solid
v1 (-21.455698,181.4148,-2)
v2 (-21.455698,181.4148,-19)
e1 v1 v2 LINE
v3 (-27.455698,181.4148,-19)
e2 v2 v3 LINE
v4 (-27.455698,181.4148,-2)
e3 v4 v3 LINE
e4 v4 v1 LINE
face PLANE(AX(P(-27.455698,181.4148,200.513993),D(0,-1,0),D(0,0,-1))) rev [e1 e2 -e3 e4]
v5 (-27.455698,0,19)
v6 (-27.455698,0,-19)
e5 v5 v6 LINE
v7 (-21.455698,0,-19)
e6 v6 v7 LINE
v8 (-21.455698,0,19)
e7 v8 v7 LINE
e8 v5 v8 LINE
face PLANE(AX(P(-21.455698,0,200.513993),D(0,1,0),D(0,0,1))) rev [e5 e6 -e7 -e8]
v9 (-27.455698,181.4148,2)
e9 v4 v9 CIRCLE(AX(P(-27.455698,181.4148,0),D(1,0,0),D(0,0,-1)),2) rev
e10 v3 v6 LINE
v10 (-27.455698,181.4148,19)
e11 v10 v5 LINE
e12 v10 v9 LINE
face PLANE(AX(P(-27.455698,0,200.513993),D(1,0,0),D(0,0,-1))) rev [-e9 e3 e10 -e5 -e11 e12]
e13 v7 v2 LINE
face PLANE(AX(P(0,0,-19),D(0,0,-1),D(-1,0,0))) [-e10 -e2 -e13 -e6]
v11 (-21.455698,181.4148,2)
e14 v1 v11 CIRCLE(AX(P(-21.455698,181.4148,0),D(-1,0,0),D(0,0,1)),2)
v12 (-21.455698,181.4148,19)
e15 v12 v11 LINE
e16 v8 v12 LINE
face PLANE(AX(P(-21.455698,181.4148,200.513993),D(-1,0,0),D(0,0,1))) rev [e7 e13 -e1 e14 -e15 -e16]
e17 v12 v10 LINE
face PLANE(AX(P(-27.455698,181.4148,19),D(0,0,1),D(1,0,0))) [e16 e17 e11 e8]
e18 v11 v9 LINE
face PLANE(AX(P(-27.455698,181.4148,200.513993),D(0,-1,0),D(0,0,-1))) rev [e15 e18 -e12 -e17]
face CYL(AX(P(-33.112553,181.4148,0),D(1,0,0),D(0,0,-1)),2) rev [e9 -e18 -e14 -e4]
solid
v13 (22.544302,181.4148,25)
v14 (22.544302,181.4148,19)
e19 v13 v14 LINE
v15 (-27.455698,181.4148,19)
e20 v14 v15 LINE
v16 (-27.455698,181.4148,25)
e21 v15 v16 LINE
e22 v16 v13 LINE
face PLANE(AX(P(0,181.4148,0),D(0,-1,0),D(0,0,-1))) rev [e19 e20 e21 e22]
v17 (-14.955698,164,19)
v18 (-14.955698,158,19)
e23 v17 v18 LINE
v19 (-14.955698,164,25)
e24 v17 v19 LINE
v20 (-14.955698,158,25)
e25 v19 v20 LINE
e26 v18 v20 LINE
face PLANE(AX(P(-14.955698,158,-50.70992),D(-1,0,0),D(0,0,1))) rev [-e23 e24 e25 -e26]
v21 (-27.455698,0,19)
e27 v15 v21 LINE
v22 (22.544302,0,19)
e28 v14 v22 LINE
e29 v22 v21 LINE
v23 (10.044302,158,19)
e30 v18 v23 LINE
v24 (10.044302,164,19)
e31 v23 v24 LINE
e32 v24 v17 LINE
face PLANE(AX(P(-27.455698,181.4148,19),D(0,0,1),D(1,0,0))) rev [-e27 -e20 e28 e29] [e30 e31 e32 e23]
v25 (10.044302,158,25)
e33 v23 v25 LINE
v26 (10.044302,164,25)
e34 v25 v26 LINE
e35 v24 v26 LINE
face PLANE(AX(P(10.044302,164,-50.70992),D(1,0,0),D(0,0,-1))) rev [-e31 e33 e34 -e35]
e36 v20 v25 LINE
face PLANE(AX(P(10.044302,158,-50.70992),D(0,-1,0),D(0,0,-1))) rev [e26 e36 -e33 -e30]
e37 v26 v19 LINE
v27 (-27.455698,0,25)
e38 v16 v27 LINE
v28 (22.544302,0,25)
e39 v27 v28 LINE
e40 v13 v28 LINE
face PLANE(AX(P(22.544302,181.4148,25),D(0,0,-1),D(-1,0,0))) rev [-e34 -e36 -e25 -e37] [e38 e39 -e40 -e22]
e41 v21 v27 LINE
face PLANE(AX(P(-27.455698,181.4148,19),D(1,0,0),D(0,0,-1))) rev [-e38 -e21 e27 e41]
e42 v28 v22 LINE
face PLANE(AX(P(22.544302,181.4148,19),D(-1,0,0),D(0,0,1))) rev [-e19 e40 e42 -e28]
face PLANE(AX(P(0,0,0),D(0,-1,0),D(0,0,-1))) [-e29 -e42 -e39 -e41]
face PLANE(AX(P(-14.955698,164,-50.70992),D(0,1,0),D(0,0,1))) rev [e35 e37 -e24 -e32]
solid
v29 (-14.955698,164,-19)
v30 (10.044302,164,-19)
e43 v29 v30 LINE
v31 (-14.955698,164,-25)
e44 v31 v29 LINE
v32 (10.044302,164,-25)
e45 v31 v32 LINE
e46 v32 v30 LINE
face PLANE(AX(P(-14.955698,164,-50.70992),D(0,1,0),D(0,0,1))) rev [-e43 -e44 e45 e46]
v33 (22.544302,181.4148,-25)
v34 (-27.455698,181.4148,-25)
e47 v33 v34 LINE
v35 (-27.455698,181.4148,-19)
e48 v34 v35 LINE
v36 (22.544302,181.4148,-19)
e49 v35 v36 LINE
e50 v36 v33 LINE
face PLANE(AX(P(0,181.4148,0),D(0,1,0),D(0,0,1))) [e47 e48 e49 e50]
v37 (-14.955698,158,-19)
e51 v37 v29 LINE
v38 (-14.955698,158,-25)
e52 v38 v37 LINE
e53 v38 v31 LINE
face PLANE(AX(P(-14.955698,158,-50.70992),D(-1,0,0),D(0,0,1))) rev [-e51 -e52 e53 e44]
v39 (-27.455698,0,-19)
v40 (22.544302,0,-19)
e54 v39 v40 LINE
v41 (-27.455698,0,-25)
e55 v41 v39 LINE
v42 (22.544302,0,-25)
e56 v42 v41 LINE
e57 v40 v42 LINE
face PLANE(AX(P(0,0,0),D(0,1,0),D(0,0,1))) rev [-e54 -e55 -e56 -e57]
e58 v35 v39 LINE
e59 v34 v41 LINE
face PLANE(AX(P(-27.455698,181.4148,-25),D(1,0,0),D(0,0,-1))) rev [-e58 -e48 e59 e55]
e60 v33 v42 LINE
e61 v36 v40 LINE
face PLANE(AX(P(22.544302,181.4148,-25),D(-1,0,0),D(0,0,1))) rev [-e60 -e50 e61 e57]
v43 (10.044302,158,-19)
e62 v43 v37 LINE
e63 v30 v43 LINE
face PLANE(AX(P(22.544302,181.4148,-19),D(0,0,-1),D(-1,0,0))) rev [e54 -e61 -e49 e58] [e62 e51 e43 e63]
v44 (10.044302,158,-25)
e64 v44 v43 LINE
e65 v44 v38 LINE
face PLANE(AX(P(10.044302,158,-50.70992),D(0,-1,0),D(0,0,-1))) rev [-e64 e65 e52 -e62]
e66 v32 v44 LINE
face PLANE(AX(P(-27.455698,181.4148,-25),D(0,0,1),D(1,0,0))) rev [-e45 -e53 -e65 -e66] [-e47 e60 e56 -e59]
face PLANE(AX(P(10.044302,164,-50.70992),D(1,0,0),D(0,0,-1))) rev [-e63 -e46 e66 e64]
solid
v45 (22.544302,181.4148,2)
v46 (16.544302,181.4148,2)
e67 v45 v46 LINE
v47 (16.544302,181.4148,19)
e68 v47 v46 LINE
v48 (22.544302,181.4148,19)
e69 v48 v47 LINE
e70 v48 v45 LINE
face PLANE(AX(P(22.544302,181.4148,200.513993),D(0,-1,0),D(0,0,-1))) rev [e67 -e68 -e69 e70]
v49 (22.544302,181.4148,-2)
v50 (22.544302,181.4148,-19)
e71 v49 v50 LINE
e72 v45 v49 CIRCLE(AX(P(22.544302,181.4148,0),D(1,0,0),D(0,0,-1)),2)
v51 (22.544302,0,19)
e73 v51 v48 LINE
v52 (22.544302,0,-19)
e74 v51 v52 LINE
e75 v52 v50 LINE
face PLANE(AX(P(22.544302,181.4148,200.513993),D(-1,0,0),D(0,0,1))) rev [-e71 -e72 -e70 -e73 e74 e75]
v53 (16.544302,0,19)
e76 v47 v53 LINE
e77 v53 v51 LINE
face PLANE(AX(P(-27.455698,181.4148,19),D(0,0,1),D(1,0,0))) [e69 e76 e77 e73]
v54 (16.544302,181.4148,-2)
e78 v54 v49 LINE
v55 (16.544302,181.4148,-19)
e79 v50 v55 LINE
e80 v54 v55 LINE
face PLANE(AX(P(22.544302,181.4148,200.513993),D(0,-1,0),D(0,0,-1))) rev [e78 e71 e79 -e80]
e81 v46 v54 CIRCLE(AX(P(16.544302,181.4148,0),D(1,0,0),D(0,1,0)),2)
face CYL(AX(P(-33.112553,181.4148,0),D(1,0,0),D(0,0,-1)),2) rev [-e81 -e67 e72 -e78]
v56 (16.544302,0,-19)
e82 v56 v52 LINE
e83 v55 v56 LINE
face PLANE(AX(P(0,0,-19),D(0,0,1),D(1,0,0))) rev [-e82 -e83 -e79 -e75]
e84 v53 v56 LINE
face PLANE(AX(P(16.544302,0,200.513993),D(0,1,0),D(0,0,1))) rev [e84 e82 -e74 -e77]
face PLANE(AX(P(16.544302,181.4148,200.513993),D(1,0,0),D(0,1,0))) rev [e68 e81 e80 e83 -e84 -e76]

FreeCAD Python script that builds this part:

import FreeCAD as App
import Part
import Sketcher
from FreeCAD import Vector


def add_polygon(sketch, points):
    """Adds a closed chain of lines whose ends are joined by coincident constraints."""
    first, n = sketch.GeometryCount, len(points)
    for a, b in zip(points, points[1:] + points[:1]):
        sketch.addGeometry(Part.LineSegment(App.Vector(*a, 0), App.Vector(*b, 0)), False)
    for i in range(n):
        sketch.addConstraint(Sketcher.Constraint("Coincident", first + i, 2, first + (i + 1) % n, 1))

doc = App.newDocument("Part")
body = doc.addObject("PartDesign::Body", "Body")

sketch1 = doc.addObject("Sketcher::SketchObject", "Sketch")
body.addObject(sketch1)
sketch1.AttachmentSupport = (doc.XZ_Plane, [""])
sketch1.MapMode = "FlatFace"
add_polygon(sketch1, [(-27, -25), (-27, -19), (23, -19), (23, -25)])
sketch1.addConstraint([
    Sketcher.Constraint("Vertical", 0),
    Sketcher.Constraint("Horizontal", 1),
    Sketcher.Constraint("Vertical", 2),
    Sketcher.Constraint("Horizontal", 3),
    Sketcher.Constraint("DistanceX", 1, 1, 1, 2, 50.0),
    Sketcher.Constraint("DistanceY", 0, 1, 0, 2, 6.0),
    Sketcher.Constraint("DistanceY", 0, 2, -1, 1, 19.0),
    Sketcher.Constraint("DistanceX", 0, 2, -1, 1, 27.455698),
])
pad1 = doc.addObject("PartDesign::Pad", "Pad")
body.addObject(pad1)
pad1.Profile = sketch1
pad1.Length = 181.4148
pad1.Reversed = True
body2 = doc.addObject("PartDesign::Body", "Body001")

sketch2 = doc.addObject("Sketcher::SketchObject", "Sketch001")
body2.addObject(sketch2)
sketch2.AttachmentSupport = (doc.getObject("XZ_Plane001"), [""])
sketch2.MapMode = "FlatFace"
add_polygon(sketch2, [(-27, 19), (-27, 25), (23, 25), (23, 19)])
sketch2.addConstraint([
    Sketcher.Constraint("Vertical", 0),
    Sketcher.Constraint("Horizontal", 1),
    Sketcher.Constraint("Vertical", 2),
    Sketcher.Constraint("Horizontal", 3),
    Sketcher.Constraint("DistanceX", 1, 1, 1, 2, 50.0),
    Sketcher.Constraint("DistanceY", 0, 1, 0, 2, 6.0),
    Sketcher.Constraint("DistanceY", -1, 1, 0, 2, 25.0),
    Sketcher.Constraint("DistanceX", 0, 2, -1, 1, 27.455698),
])
pad2 = doc.addObject("PartDesign::Pad", "Pad001")
body2.addObject(pad2)
pad2.Profile = sketch2
pad2.Length = 181.4148
pad2.Reversed = True
body3 = doc.addObject("PartDesign::Body", "Body002")

sketch3 = doc.addObject("Sketcher::SketchObject", "Sketch002")
body3.addObject(sketch3)
sketch3.AttachmentSupport = (doc.getObject("XY_Plane002"), [""])
sketch3.MapMode = "FlatFace"
sketch3.AttachmentOffset = App.Placement(Vector(0, 0, -19), App.Rotation())
add_polygon(sketch3, [(17, 181), (17, 0), (23, 0), (23, 181)])
sketch3.addConstraint([
    Sketcher.Constraint("Vertical", 0),
    Sketcher.Constraint("Horizontal", 1),
    Sketcher.Constraint("Vertical", 2),
    Sketcher.Constraint("Horizontal", 3),
    Sketcher.Constraint("PointOnObject", 0, 2, -1),
    Sketcher.Constraint("DistanceX", 1, 1, 1, 2, 6.0),
    Sketcher.Constraint("DistanceY", 0, 2, 0, 1, 181.4148),
    Sketcher.Constraint("DistanceX", -1, 1, 0, 2, 16.544302),
])
pad3 = doc.addObject("PartDesign::Pad", "Pad002")
body3.addObject(pad3)
pad3.Profile = sketch3
pad3.Length = 38
body4 = doc.addObject("PartDesign::Body", "Body003")

sketch4 = doc.addObject("Sketcher::SketchObject", "Sketch003")
body4.addObject(sketch4)
sketch4.AttachmentSupport = (doc.getObject("XY_Plane003"), [""])
sketch4.MapMode = "FlatFace"
sketch4.AttachmentOffset = App.Placement(Vector(0, 0, -19), App.Rotation())
add_polygon(sketch4, [(-27, 181), (-27, 0), (-21, 0), (-21, 181)])
sketch4.addConstraint([
    Sketcher.Constraint("Vertical", 0),
    Sketcher.Constraint("Horizontal", 1),
    Sketcher.Constraint("Vertical", 2),
    Sketcher.Constraint("Horizontal", 3),
    Sketcher.Constraint("PointOnObject", 0, 2, -1),
    Sketcher.Constraint("DistanceX", 1, 1, 1, 2, 6.0),
    Sketcher.Constraint("DistanceY", 0, 2, 0, 1, 181.4148),
    Sketcher.Constraint("DistanceX", 0, 2, -1, 1, 27.455698),
])
pad4 = doc.addObject("PartDesign::Pad", "Pad003")
body4.addObject(pad4)
pad4.Profile = sketch4
pad4.Length = 38
body5 = doc.addObject("PartDesign::Body", "Body004")

sketch5 = doc.addObject("Sketcher::SketchObject", "Sketch004")
body5.addObject(sketch5)
sketch5.AttachmentSupport = (doc.getObject("YZ_Plane004"), [""])
sketch5.MapMode = "FlatFace"
sketch5.AttachmentOffset = App.Placement(Vector(0, 0, -27.455698), App.Rotation())
sketch5.addGeometry(Part.Circle(Vector(181.4, 0, 0), Vector(0, 0, 1), 2), False)
sketch5.addConstraint([
    Sketcher.Constraint("PointOnObject", 0, 3, -1),
    Sketcher.Constraint("Diameter", 0, 4.0),
    Sketcher.Constraint("DistanceX", -1, 1, 0, 3, 181.4148),
])
pad5 = doc.addObject("PartDesign::Pad", "Pad004")
body5.addObject(pad5)
pad5.Profile = sketch5
pad5.Length = 50
doc.recompute()

body6 = doc.addObject("PartDesign::Body", "Body005")
body6.BaseFeature = body5
boolean = doc.addObject("PartDesign::Boolean", "Boolean")
body3.addObject(boolean)
boolean.Type = "Cut"
boolean.addObjects([body6])
doc.recompute()

boolean2 = doc.addObject("PartDesign::Boolean", "Boolean001")
body4.addObject(boolean2)
boolean2.Type = "Cut"
boolean2.addObjects([body5])
body7 = doc.addObject("PartDesign::Body", "Body006")

sketch6 = doc.addObject("Sketcher::SketchObject", "Sketch005")
body7.addObject(sketch6)
sketch6.AttachmentSupport = (doc.getObject("XY_Plane006"), [""])
sketch6.MapMode = "FlatFace"
sketch6.AttachmentOffset = App.Placement(Vector(0, 0, -25), App.Rotation())
add_polygon(sketch6, [(-15, 164), (-15, 158), (10, 158), (10, 164)])
sketch6.addConstraint([
    Sketcher.Constraint("Vertical", 0),
    Sketcher.Constraint("Horizontal", 1),
    Sketcher.Constraint("Vertical", 2),
    Sketcher.Constraint("Horizontal", 3),
    Sketcher.Constraint("DistanceX", 1, 1, 1, 2, 25.0),
    Sketcher.Constraint("DistanceY", 0, 2, 0, 1, 6.0),
    Sketcher.Constraint("DistanceY", -1, 1, 0, 2, 158.0),
    Sketcher.Constraint("DistanceX", 0, 2, -1, 1, 14.955698),
])
pad6 = doc.addObject("PartDesign::Pad", "Pad005")
body7.addObject(pad6)
pad6.Profile = sketch6
pad6.Length = 50
doc.recompute()

body8 = doc.addObject("PartDesign::Body", "Body007")
body8.BaseFeature = body7
boolean3 = doc.addObject("PartDesign::Boolean", "Boolean002")
body.addObject(boolean3)
boolean3.Type = "Cut"
boolean3.addObjects([body8])
doc.recompute()

boolean4 = doc.addObject("PartDesign::Boolean", "Boolean003")
body2.addObject(boolean4)
boolean4.Type = "Cut"
boolean4.addObjects([body7])

doc.recompute()
